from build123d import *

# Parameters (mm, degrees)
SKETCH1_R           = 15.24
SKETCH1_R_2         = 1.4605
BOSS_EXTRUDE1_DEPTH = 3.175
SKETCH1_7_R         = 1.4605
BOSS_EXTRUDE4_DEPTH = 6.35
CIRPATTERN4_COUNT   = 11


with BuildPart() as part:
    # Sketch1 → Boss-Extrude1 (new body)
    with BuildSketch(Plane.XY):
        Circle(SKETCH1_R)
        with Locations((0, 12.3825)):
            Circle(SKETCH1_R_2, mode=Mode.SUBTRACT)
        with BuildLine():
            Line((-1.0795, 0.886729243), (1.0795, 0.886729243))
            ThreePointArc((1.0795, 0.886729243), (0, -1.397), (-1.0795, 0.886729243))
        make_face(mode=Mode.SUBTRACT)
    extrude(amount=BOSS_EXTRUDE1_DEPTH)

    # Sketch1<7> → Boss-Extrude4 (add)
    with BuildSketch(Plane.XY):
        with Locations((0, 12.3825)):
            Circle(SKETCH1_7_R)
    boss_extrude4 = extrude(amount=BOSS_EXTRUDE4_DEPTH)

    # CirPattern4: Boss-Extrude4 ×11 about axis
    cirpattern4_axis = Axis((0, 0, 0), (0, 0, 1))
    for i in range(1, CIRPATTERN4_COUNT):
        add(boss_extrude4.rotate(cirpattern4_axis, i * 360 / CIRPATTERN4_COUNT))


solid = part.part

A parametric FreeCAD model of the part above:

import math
import FreeCAD as App
import Part
import Sketcher

V = App.Vector
Q = App.Units.Quantity

doc = App.newDocument("Part")
body = doc.addObject("PartDesign::Body", "Body")

# Sketch on XY plane
sketch1 = doc.addObject("Sketcher::SketchObject", "Sketch")
body.addObject(sketch1)
sketch1.AttachmentSupport = (doc.XY_Plane, [""])
sketch1.MapMode = "FlatFace"
sketch1.addGeometry([
    Part.Circle(V(0, 0, 0), V(0, 0, 1), 15.2),
    Part.ArcOfCircle(Part.Circle(V(0, 0, 0), V(0, 0, 1), 1.4), math.radians(141), math.radians(399)),
    Part.LineSegment(V(-1.1, 0.9, 0), V(1.1, 0.9, 0)),
    Part.Circle(V(0, 12.4, 0), V(0, 0, 1), 1.5),
], False)
sketch1.addConstraint([
    Sketcher.Constraint("Coincident", 1, 1, 2, 1),
    Sketcher.Constraint("Coincident", 2, 2, 1, 2),
    Sketcher.Constraint("Horizontal", 2),
    Sketcher.Constraint("Coincident", 0, 3, -1, 1),
    Sketcher.Constraint("Coincident", 1, 3, -1, 1),
    Sketcher.Constraint("PointOnObject", 3, 3, -2),
    Sketcher.Constraint("Diameter", 0, Q("1.2 in")),
    Sketcher.Constraint("Diameter", 3, Q("0.115 in")),
    Sketcher.Constraint("Radius", 1, Q("0.055 in")),
    Sketcher.Constraint("DistanceX", 2, 1, 2, 2, Q("0.085 in")),
    Sketcher.Constraint("DistanceY", -1, 1, 3, 3, Q("0.4875 in")),
])
pad1 = doc.addObject("PartDesign::Pad", "Pad")
body.addObject(pad1)
pad1.Profile = sketch1
pad1.Length = Q("0.125 in")

# Sketch on XY plane
sketch2 = doc.addObject("Sketcher::SketchObject", "Sketch001")
body.addObject(sketch2)
sketch2.AttachmentSupport = (doc.XY_Plane, [""])
sketch2.MapMode = "FlatFace"
sketch2.addGeometry(Part.Circle(V(0, 12.4, 0), V(0, 0, 1), 1.5), False)
sketch2.addConstraint([
    Sketcher.Constraint("PointOnObject", 0, 3, -2),
    Sketcher.Constraint("Diameter", 0, Q("0.115 in")),
    Sketcher.Constraint("DistanceY", -1, 1, 0, 3, Q("0.4875 in")),
])
pad2 = doc.addObject("PartDesign::Pad", "Pad001")
body.addObject(pad2)
pad2.Profile = sketch2
pad2.Length = Q("0.25 in")
doc.recompute()

polarpattern = doc.addObject("PartDesign::PolarPattern", "PolarPattern")
body.addObject(polarpattern)
polarpattern.Originals = [pad2]
polarpattern.Axis = (doc.Z_Axis, [""])
polarpattern.Angle = 360
polarpattern.Occurrences = 11
body.Tip = polarpattern

doc.recompute()
